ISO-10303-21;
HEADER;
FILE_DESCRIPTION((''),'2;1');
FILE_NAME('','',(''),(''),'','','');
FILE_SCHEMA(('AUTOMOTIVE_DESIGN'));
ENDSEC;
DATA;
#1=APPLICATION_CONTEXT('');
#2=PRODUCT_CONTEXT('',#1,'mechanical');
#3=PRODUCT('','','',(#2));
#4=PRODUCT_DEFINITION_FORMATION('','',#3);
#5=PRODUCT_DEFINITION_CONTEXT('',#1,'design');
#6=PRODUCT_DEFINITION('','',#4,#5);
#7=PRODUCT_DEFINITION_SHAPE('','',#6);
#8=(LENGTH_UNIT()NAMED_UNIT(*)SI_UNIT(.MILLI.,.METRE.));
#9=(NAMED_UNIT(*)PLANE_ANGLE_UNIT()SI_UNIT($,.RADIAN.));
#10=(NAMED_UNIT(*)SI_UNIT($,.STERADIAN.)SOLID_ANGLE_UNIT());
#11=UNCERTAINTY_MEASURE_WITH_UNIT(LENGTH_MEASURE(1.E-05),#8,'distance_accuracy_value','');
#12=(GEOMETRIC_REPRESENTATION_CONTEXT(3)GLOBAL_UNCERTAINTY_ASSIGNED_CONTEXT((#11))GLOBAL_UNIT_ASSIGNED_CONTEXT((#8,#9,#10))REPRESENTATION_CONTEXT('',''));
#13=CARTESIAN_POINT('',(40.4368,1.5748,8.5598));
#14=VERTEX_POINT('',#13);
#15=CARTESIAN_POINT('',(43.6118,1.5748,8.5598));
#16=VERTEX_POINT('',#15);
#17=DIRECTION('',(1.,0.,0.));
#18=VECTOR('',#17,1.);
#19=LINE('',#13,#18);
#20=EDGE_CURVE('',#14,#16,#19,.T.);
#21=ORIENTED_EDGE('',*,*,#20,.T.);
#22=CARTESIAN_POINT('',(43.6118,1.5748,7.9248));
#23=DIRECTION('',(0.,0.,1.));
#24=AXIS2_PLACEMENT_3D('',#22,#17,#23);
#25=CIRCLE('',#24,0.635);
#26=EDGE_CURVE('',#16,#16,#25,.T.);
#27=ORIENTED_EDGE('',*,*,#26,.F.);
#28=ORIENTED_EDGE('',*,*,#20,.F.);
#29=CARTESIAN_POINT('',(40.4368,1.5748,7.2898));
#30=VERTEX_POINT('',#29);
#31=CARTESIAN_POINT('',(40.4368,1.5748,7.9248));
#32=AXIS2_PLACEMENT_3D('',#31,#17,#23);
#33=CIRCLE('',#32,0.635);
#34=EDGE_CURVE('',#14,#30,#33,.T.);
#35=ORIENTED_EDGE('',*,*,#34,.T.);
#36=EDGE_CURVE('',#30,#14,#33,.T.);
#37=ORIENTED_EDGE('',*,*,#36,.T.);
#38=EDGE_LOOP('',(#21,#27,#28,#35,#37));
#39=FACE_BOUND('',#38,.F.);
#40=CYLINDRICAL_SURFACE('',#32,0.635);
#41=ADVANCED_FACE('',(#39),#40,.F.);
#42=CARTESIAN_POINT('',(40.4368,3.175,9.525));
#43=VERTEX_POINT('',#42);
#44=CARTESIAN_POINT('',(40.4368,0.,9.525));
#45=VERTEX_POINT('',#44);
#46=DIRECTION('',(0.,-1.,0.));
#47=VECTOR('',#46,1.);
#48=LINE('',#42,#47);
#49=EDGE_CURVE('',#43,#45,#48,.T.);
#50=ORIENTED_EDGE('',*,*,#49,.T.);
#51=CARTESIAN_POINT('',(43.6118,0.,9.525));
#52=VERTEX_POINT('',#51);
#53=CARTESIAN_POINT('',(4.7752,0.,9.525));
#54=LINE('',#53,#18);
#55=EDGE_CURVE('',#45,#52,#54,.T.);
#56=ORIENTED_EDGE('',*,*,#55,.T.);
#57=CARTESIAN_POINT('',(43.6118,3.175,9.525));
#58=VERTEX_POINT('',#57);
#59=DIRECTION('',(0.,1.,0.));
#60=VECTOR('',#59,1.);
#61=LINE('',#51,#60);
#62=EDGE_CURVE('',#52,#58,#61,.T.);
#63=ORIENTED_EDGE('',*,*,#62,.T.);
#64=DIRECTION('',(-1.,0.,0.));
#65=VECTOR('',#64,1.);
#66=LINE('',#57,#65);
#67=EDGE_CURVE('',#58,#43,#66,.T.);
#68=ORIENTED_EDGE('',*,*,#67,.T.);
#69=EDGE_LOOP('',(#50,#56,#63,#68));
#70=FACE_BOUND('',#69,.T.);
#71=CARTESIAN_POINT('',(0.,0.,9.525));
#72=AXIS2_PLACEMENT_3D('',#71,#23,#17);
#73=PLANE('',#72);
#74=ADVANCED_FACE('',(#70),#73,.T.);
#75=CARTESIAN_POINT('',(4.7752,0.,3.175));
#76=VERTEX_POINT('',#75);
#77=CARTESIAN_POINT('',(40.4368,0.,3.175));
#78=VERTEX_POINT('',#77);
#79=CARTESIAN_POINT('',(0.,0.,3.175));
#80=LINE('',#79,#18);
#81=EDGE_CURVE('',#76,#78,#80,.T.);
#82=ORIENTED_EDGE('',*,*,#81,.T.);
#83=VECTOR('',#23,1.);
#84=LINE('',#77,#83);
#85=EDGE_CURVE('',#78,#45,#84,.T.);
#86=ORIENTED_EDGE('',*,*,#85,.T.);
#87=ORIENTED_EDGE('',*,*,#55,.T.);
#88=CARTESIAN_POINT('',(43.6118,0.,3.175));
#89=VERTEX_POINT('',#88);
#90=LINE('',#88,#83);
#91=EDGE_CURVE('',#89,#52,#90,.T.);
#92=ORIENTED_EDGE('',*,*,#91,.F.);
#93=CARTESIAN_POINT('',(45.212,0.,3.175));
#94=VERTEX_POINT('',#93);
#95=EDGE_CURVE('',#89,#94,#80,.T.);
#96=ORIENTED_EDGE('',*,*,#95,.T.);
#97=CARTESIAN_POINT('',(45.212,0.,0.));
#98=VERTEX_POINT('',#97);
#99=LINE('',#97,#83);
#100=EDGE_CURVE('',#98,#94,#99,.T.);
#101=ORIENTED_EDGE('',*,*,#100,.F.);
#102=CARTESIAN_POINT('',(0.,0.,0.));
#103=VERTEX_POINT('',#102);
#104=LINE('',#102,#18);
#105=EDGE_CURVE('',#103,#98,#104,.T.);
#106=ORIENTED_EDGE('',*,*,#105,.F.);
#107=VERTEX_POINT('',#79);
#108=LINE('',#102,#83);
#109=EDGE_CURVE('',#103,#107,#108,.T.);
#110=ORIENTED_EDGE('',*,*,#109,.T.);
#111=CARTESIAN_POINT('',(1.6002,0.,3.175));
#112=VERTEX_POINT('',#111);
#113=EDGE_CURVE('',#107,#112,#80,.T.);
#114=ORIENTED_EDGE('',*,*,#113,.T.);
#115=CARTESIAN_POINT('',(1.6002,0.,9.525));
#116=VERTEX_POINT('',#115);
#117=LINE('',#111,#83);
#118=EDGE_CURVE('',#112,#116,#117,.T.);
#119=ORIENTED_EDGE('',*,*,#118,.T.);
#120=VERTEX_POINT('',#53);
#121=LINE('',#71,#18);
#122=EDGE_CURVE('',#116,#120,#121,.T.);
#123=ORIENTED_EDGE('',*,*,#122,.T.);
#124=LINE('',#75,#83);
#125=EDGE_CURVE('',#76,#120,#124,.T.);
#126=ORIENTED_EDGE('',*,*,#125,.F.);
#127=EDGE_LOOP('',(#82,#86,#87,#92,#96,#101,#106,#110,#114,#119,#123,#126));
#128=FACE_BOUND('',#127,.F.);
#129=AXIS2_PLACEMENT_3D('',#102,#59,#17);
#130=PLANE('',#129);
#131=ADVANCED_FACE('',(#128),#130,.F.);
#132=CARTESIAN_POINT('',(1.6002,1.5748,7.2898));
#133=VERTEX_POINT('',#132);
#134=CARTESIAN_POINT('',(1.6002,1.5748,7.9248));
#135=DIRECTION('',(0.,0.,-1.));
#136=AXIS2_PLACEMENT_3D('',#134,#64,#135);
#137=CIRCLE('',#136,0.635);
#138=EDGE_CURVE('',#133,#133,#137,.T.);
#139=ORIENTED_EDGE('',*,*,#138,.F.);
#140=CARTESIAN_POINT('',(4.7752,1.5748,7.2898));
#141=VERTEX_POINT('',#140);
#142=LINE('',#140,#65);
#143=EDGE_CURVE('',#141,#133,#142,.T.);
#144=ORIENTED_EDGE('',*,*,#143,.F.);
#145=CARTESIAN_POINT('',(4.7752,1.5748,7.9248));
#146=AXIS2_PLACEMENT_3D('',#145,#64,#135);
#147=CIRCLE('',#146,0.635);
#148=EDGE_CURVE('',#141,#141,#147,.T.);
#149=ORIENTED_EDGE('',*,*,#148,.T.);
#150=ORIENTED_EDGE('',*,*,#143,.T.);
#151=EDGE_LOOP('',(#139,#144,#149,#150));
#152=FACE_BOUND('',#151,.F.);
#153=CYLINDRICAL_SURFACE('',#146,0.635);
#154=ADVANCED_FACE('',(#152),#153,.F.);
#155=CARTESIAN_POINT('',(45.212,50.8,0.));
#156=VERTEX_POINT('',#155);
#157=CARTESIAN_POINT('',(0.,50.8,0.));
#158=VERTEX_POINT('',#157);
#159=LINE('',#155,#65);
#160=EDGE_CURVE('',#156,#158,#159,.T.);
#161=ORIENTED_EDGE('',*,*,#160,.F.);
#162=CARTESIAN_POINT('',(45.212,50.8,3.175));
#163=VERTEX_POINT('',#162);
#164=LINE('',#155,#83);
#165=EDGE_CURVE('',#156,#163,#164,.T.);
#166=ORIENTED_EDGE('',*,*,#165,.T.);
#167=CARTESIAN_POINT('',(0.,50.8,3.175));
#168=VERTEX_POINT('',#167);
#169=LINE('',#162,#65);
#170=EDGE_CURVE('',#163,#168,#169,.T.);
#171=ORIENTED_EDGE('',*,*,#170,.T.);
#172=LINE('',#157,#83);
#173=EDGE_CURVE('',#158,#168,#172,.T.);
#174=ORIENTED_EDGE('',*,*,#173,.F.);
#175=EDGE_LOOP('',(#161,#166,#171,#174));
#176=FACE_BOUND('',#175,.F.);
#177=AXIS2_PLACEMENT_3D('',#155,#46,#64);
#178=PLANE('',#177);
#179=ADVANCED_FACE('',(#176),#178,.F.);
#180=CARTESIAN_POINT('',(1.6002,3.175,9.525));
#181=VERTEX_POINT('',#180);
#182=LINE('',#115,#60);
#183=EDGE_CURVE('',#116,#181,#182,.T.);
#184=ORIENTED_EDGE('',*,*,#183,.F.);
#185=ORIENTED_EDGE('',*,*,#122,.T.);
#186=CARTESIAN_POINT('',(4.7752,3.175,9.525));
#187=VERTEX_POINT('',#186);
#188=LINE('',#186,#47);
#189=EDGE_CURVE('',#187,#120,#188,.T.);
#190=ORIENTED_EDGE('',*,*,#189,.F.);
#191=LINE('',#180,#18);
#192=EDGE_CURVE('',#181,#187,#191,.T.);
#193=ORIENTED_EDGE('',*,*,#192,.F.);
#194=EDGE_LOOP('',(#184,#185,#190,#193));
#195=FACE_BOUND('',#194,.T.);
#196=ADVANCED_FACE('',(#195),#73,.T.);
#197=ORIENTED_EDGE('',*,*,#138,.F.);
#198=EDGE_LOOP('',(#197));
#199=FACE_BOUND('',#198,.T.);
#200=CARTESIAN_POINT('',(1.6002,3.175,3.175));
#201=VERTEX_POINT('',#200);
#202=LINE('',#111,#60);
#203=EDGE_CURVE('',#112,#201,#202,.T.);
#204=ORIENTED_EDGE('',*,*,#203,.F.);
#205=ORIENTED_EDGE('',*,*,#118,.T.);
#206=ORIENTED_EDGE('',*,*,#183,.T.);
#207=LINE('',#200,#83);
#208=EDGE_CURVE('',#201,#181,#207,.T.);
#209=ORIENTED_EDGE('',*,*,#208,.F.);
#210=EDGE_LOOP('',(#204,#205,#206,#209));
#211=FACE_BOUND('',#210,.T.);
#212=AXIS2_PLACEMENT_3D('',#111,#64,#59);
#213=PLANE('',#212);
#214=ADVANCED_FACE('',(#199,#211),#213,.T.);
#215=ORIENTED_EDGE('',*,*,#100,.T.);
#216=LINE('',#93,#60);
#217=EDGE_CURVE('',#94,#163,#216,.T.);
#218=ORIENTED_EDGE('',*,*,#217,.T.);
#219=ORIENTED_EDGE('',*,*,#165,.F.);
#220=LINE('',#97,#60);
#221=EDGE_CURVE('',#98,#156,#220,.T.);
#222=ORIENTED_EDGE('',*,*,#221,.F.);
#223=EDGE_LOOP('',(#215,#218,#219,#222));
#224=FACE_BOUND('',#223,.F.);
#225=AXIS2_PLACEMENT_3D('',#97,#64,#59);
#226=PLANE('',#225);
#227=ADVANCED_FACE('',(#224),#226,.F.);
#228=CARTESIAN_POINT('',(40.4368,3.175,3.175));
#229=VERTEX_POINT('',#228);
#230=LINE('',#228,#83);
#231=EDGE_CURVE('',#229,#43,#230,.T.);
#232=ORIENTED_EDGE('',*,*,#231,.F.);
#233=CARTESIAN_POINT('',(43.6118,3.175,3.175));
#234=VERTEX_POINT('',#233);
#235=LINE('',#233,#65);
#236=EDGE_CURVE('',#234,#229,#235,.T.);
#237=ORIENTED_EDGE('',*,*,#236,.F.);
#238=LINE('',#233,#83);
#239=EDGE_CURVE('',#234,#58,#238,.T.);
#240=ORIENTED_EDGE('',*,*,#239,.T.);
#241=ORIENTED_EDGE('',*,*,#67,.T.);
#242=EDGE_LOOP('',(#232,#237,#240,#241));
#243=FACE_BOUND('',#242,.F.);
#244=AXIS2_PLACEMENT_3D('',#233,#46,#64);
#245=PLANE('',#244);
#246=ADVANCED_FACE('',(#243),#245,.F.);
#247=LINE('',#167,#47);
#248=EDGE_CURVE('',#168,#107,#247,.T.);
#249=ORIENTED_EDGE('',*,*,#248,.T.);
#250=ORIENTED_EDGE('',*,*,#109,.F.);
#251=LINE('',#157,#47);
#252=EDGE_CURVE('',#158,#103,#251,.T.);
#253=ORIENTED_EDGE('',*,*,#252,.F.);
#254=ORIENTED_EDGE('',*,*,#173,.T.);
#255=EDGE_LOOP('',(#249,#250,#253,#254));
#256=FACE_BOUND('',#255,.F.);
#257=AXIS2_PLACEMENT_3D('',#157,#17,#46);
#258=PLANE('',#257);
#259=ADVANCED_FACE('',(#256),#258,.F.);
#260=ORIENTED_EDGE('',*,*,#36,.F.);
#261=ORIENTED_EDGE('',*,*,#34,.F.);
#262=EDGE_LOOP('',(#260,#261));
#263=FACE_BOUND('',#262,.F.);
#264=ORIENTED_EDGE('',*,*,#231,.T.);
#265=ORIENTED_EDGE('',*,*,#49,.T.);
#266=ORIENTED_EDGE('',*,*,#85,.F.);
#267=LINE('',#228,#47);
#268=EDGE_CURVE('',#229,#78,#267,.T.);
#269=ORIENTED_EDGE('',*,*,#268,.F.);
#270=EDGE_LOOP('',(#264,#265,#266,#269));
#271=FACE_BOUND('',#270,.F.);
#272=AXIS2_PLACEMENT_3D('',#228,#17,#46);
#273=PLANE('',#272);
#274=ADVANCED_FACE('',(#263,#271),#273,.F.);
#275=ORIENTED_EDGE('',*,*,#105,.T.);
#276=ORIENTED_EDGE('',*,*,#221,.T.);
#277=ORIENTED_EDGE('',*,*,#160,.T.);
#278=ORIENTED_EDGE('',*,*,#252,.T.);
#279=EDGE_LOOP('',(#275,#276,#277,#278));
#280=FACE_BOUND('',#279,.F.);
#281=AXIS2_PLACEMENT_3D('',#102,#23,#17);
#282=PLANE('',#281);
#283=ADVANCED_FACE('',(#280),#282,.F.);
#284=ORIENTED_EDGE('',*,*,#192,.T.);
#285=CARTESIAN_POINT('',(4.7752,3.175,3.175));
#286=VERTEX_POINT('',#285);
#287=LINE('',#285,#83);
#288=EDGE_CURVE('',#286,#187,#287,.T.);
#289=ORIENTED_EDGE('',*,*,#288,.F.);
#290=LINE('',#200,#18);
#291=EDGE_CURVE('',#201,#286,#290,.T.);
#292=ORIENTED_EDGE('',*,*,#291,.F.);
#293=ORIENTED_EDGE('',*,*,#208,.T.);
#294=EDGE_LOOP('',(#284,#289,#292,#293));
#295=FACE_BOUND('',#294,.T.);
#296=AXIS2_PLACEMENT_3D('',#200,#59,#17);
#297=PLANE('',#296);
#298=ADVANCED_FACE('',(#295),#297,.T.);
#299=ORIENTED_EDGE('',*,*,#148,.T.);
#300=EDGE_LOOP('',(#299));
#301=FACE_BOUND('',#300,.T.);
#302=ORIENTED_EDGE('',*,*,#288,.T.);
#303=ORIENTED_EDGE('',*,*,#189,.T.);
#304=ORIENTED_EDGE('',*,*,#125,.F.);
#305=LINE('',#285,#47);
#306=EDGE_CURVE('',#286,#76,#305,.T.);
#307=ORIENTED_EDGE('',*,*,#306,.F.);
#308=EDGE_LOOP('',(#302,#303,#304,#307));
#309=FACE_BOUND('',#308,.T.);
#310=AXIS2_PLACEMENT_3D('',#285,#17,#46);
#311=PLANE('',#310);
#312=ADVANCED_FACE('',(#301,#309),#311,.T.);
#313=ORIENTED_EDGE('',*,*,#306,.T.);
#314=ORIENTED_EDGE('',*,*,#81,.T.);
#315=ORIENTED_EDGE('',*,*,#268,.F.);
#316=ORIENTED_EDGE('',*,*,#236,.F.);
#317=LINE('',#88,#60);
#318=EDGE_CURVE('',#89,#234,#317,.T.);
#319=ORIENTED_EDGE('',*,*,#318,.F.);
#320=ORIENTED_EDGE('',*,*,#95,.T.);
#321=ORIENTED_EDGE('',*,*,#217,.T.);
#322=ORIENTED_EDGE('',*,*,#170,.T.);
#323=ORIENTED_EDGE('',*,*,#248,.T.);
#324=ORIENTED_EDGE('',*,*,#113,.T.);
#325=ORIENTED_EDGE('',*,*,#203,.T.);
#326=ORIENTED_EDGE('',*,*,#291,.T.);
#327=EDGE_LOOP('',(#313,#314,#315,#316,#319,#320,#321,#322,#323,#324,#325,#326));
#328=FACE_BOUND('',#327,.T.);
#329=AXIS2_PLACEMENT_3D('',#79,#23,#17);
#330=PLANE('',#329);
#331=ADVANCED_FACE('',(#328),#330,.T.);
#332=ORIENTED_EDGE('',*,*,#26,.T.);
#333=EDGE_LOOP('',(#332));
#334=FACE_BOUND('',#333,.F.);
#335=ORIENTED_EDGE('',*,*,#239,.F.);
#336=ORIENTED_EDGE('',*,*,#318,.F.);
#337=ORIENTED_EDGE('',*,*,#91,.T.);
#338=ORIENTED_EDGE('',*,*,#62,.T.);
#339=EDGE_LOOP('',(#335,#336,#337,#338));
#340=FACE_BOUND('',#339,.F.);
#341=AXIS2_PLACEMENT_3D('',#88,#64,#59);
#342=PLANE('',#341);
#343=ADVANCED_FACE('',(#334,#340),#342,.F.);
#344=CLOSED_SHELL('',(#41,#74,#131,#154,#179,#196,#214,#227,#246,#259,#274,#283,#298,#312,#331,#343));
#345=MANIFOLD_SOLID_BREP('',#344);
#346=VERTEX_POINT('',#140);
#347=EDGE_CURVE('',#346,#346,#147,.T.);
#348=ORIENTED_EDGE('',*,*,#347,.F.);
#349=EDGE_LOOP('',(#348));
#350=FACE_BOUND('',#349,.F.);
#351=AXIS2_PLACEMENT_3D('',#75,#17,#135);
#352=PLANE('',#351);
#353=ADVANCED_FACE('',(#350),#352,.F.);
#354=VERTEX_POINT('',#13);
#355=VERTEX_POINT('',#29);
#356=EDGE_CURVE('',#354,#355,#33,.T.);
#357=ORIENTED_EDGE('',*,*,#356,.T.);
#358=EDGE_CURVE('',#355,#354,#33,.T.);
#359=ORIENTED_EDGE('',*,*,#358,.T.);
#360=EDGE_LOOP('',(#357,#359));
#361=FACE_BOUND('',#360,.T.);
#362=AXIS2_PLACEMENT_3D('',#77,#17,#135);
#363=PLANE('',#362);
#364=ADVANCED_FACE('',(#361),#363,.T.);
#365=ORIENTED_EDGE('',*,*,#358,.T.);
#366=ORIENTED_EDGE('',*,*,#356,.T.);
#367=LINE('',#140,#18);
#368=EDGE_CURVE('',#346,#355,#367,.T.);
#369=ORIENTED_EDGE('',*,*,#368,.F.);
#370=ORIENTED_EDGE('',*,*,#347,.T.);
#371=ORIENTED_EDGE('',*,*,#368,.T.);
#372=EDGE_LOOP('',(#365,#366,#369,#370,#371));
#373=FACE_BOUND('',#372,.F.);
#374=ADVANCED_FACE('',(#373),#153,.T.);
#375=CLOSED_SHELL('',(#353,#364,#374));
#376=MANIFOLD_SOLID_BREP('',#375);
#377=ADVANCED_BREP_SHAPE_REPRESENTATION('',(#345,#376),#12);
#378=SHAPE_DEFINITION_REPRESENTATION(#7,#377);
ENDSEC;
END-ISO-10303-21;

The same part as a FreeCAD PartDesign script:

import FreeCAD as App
import Part
import Sketcher

V = App.Vector
Q = App.Units.Quantity

doc = App.newDocument("Part")
body = doc.addObject("PartDesign::Body", "Body")
body.AllowCompound = True

sketch1 = body.newObject("Sketcher::SketchObject", "Sketch")
sketch1.AttachmentSupport = (doc.getObject("XY_Plane"), [""])
sketch1.MapMode = "FlatFace"
sketch1.addGeometry([
    Part.LineSegment(V(0, 51, 0), V(0, 0, 0)),
    Part.LineSegment(V(0, 0, 0), V(45, 0, 0)),
    Part.LineSegment(V(45, 0, 0), V(45, 51, 0)),
    Part.LineSegment(V(45, 51, 0), V(0, 51, 0)),
], False)
sketch1.addConstraint([
    Sketcher.Constraint("Coincident", 0, 2, 1, 1),
    Sketcher.Constraint("Coincident", 1, 2, 2, 1),
    Sketcher.Constraint("Coincident", 2, 2, 3, 1),
    Sketcher.Constraint("Coincident", 3, 2, 0, 1),
    Sketcher.Constraint("Vertical", 0),
    Sketcher.Constraint("Horizontal", 1),
    Sketcher.Constraint("Vertical", 2),
    Sketcher.Constraint("Horizontal", 3),
    Sketcher.Constraint("Coincident", 0, 2, -1, 1),
    Sketcher.Constraint("DistanceY", 0, 2, 0, 1, Q("2 in")),
    Sketcher.Constraint("DistanceX", 1, 1, 1, 2, Q("1.78 in")),
])
pad1 = body.newObject("PartDesign::Pad", "Pad")
pad1.Profile = sketch1
pad1.Length = Q("0.125 in")

sketch2 = body.newObject("Sketcher::SketchObject", "Sketch001")
sketch2.AttachmentSupport = (doc.getObject("XY_Plane"), [""])
sketch2.MapMode = "FlatFace"
sketch2.AttachmentOffset = App.Placement(V(0, 0, 0.125 * 25.4), App.Rotation())
sketch2.addGeometry([
    Part.LineSegment(V(1.6, 3.2, 0), V(1.6, 0, 0)),
    Part.LineSegment(V(1.6, 0, 0), V(4.8, 0, 0)),
    Part.LineSegment(V(4.8, 0, 0), V(4.8, 3.2, 0)),
    Part.LineSegment(V(4.8, 3.2, 0), V(1.6, 3.2, 0)),
], False)
sketch2.addConstraint([
    Sketcher.Constraint("Coincident", 0, 2, 1, 1),
    Sketcher.Constraint("Coincident", 1, 2, 2, 1),
    Sketcher.Constraint("Coincident", 2, 2, 3, 1),
    Sketcher.Constraint("Coincident", 3, 2, 0, 1),
    Sketcher.Constraint("Vertical", 0),
    Sketcher.Constraint("Horizontal", 1),
    Sketcher.Constraint("Vertical", 2),
    Sketcher.Constraint("Horizontal", 3),
    Sketcher.Constraint("PointOnObject", 0, 2, -1),
    Sketcher.Constraint("Equal", 3, 0),
    Sketcher.Constraint("DistanceX", 1, 1, 1, 2, Q("0.125 in")),
    Sketcher.Constraint("DistanceX", -1, 1, 0, 2, Q("0.063 in")),
])
pad2 = body.newObject("PartDesign::Pad", "Pad001")
pad2.Profile = sketch2
pad2.Length = Q("0.25 in")

sketch3 = body.newObject("Sketcher::SketchObject", "Sketch002")
sketch3.AttachmentSupport = (doc.getObject("XY_Plane"), [""])
sketch3.MapMode = "FlatFace"
sketch3.AttachmentOffset = App.Placement(V(0, 0, 0.125 * 25.4), App.Rotation())
sketch3.addGeometry([
    Part.LineSegment(V(40.4, 3.2, 0), V(40.4, 0, 0)),
    Part.LineSegment(V(40.4, 0, 0), V(43.6, 0, 0)),
    Part.LineSegment(V(43.6, 0, 0), V(43.6, 3.2, 0)),
    Part.LineSegment(V(43.6, 3.2, 0), V(40.4, 3.2, 0)),
], False)
sketch3.addConstraint([
    Sketcher.Constraint("Coincident", 0, 2, 1, 1),
    Sketcher.Constraint("Coincident", 1, 2, 2, 1),
    Sketcher.Constraint("Coincident", 2, 2, 3, 1),
    Sketcher.Constraint("Coincident", 3, 2, 0, 1),
    Sketcher.Constraint("Vertical", 0),
    Sketcher.Constraint("Horizontal", 1),
    Sketcher.Constraint("Vertical", 2),
    Sketcher.Constraint("Horizontal", 3),
    Sketcher.Constraint("PointOnObject", 0, 2, -1),
    Sketcher.Constraint("Equal", 3, 0),
    Sketcher.Constraint("DistanceX", 1, 1, 1, 2, Q("0.125 in")),
    Sketcher.Constraint("DistanceX", -1, 1, 0, 2, Q("1.592 in")),
])
pad3 = body.newObject("PartDesign::Pad", "Pad002")
pad3.Profile = sketch3
pad3.Length = Q("0.25 in")

sketch4 = body.newObject("Sketcher::SketchObject", "Sketch003")
sketch4.AttachmentSupport = (doc.getObject("YZ_Plane"), [""])
sketch4.MapMode = "FlatFace"
sketch4.AttachmentOffset = App.Placement(V(0, 0, 0.188 * 25.4), App.Rotation())
sketch4.addGeometry(Part.Circle(V(1.6, 7.9, 0), V(0, 0, 1), 0.6), False)
sketch4.addConstraint([
    Sketcher.Constraint("Diameter", 0, Q("0.05 in")),
    Sketcher.Constraint("DistanceX", -1, 1, 0, 3, Q("0.062 in")),
    Sketcher.Constraint("DistanceY", -1, 1, 0, 3, Q("0.312 in")),
])
doc.recompute()
hole = body.newObject("PartDesign::Hole", "Hole")
hole.Profile = sketch4
hole.ThreadType = "None"
hole.Diameter = Q("0.05 in")
hole.DepthType = "ThroughAll"

sketch5 = body.newObject("Sketcher::SketchObject", "Sketch004")
sketch5.AttachmentSupport = (doc.getObject("YZ_Plane"), [""])
sketch5.MapMode = "FlatFace"
sketch5.AttachmentOffset = App.Placement(V(0, 0, 1.592 * 25.4), App.Rotation())
sketch5.addGeometry(Part.Circle(V(1.6, 7.9, 0), V(0, 0, 1), 0.6), False)
sketch5.addConstraint([
    Sketcher.Constraint("Diameter", 0, Q("0.05 in")),
    Sketcher.Constraint("DistanceX", -1, 1, 0, 3, Q("0.062 in")),
    Sketcher.Constraint("DistanceY", -1, 1, 0, 3, Q("0.312 in")),
])
doc.recompute()
hole2 = body.newObject("PartDesign::Hole", "Hole001")
hole2.Profile = sketch5
hole2.ThreadType = "None"
hole2.Diameter = Q("0.05 in")
hole2.DepthType = "ThroughAll"
hole2.Reversed = True

sketch6 = body.newObject("Sketcher::SketchObject", "Sketch005")
sketch6.AttachmentSupport = (doc.getObject("YZ_Plane"), [""])
sketch6.MapMode = "FlatFace"
sketch6.AttachmentOffset = App.Placement(V(0, 0, 0.188 * 25.4), App.Rotation())
sketch6.addGeometry(Part.Circle(V(1.6, 7.9, 0), V(0, 0, 1), 0.6), False)
sketch6.addConstraint([
    Sketcher.Constraint("Diameter", 0, Q("0.05 in")),
    Sketcher.Constraint("DistanceX", -1, 1, 0, 3, Q("0.062 in")),
    Sketcher.Constraint("DistanceY", -1, 1, 0, 3, Q("0.312 in")),
])
pad4 = body.newObject("PartDesign::Pad", "Pad003")
pad4.Profile = sketch6
pad4.Length = Q("1.404 in")

doc.recompute()
